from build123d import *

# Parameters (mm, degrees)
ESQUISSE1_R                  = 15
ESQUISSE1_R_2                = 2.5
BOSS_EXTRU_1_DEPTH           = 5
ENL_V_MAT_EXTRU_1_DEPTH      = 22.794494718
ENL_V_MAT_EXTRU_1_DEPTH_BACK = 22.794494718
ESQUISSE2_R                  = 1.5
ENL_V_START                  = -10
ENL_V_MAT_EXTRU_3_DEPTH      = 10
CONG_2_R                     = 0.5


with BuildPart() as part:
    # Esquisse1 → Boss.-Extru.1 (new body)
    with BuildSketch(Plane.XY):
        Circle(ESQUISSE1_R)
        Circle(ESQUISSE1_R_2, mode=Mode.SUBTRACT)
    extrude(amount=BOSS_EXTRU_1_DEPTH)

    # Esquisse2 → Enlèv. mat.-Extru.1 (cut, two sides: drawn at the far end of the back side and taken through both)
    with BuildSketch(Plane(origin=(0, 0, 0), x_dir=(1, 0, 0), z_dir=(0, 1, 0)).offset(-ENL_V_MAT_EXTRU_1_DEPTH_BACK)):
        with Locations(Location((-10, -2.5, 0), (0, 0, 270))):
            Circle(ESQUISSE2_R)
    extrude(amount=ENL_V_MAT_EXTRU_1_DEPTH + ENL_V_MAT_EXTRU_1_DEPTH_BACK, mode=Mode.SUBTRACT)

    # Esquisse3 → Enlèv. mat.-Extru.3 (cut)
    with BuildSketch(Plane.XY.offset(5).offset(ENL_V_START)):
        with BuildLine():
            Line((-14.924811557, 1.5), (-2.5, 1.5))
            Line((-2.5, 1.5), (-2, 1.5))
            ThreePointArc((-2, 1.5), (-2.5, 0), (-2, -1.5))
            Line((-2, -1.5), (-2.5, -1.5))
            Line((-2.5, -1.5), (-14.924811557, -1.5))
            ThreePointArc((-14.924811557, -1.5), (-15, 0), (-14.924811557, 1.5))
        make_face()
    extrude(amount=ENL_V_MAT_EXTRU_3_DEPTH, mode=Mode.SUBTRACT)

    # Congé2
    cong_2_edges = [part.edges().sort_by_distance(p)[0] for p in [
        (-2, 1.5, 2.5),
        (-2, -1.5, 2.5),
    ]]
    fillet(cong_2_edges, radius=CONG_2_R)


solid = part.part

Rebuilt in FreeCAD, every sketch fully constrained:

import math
import FreeCAD as App
import Part
import Sketcher
from FreeCAD import Vector
Q = App.Units.Quantity


def edges_at(feature, points):
    """Names of the edges that pass closest to the given points."""
    edges = feature.Shape.Edges
    near = lambda p: min(range(len(edges)), key=lambda i: edges[i].distToShape(Part.Vertex(*p))[0])
    return sorted({f"Edge{near(p) + 1}" for p in points})

doc = App.newDocument("Part")
body = doc.addObject("PartDesign::Body", "Body")

# Sketch on XY plane
sketch1 = doc.addObject("Sketcher::SketchObject", "Sketch")
body.addObject(sketch1)
sketch1.AttachmentSupport = (doc.XY_Plane, [""])
sketch1.MapMode = "FlatFace"
sketch1.addGeometry([
    Part.Circle(Vector(0, 0, 0), Vector(0, 0, 1), 15),
    Part.Circle(Vector(0, 0, 0), Vector(0, 0, 1), 2.5),
], False)
sketch1.addConstraint([
    Sketcher.Constraint("Coincident", 0, 3, -1, 1),
    Sketcher.Constraint("Coincident", 1, 3, -1, 1),
    Sketcher.Constraint("Diameter", 0, Q("30 mm")),
    Sketcher.Constraint("Diameter", 1, Q("5 mm")),
])
pad1 = doc.addObject("PartDesign::Pad", "Pad")
body.addObject(pad1)
pad1.Profile = sketch1
pad1.Length = 5

# Sketch on XZ plane
sketch2 = doc.addObject("Sketcher::SketchObject", "Sketch001")
body.addObject(sketch2)
sketch2.AttachmentSupport = (doc.XZ_Plane, [""])
sketch2.MapMode = "FlatFace"
sketch2.addGeometry(Part.Circle(Vector(-10, 2.5, 0), Vector(0, 0, 1), 1.5), False)
sketch2.addConstraint([
    Sketcher.Constraint("Diameter", 0, Q("3 mm")),
    Sketcher.Constraint("DistanceX", 0, 3, -1, 1, Q("10 mm")),
    Sketcher.Constraint("DistanceY", -1, 1, 0, 3, Q("2.5 mm")),
])
pocket1 = doc.addObject("PartDesign::Pocket", "Pocket")
body.addObject(pocket1)
pocket1.Profile = sketch2
pocket1.Type = "ThroughAll"
pocket1.Midplane = True

# Sketch on XY plane
sketch3 = doc.addObject("Sketcher::SketchObject", "Sketch002")
body.addObject(sketch3)
sketch3.AttachmentSupport = (doc.XY_Plane, [""])
sketch3.MapMode = "FlatFace"
sketch3.AttachmentOffset = App.Placement(Vector(0, 0, -5), App.Rotation())
sketch3.addGeometry([
    Part.LineSegment(Vector(-2, 1.5, 0), Vector(-14.9, 1.5, 0)),
    Part.ArcOfCircle(Part.Circle(Vector(0, 0, 0), Vector(0, 0, 1), 15), math.radians(174.26), math.radians(185.74)),
    Part.LineSegment(Vector(-14.9, -1.5, 0), Vector(-2, -1.5, 0)),
    Part.ArcOfCircle(Part.Circle(Vector(0, 0, 0), Vector(0, 0, 1), 2.5), math.radians(143), math.radians(217)),
], False)
sketch3.addConstraint([
    Sketcher.Constraint("Coincident", 0, 2, 1, 1),
    Sketcher.Constraint("Coincident", 1, 2, 2, 1),
    Sketcher.Constraint("Coincident", 2, 2, 3, 2),
    Sketcher.Constraint("Coincident", 3, 1, 0, 1),
    Sketcher.Constraint("Horizontal", 0),
    Sketcher.Constraint("Horizontal", 2),
    Sketcher.Constraint("Coincident", 1, 3, -1, 1),
    Sketcher.Constraint("Coincident", 3, 3, -1, 1),
    Sketcher.Constraint("Vertical", 0, 2, 1, 2),
    Sketcher.Constraint("Radius", 1, Q("15 mm")),
    Sketcher.Constraint("Radius", 3, Q("2.5 mm")),
    Sketcher.Constraint("DistanceX", 2, 2, -1, 1, Q("2 mm")),
])
pocket2 = doc.addObject("PartDesign::Pocket", "Pocket001")
body.addObject(pocket2)
pocket2.Profile = sketch3
pocket2.Length = 10
pocket2.Reversed = True
doc.recompute()

fillet = doc.addObject("PartDesign::Fillet", "Fillet")
body.addObject(fillet)
fillet.Base = (pocket2, edges_at(pocket2, [(-2, 1.5, 2.5), (-2, -1.5, 2.5)]))
fillet.Radius = 0.5

doc.recompute()
